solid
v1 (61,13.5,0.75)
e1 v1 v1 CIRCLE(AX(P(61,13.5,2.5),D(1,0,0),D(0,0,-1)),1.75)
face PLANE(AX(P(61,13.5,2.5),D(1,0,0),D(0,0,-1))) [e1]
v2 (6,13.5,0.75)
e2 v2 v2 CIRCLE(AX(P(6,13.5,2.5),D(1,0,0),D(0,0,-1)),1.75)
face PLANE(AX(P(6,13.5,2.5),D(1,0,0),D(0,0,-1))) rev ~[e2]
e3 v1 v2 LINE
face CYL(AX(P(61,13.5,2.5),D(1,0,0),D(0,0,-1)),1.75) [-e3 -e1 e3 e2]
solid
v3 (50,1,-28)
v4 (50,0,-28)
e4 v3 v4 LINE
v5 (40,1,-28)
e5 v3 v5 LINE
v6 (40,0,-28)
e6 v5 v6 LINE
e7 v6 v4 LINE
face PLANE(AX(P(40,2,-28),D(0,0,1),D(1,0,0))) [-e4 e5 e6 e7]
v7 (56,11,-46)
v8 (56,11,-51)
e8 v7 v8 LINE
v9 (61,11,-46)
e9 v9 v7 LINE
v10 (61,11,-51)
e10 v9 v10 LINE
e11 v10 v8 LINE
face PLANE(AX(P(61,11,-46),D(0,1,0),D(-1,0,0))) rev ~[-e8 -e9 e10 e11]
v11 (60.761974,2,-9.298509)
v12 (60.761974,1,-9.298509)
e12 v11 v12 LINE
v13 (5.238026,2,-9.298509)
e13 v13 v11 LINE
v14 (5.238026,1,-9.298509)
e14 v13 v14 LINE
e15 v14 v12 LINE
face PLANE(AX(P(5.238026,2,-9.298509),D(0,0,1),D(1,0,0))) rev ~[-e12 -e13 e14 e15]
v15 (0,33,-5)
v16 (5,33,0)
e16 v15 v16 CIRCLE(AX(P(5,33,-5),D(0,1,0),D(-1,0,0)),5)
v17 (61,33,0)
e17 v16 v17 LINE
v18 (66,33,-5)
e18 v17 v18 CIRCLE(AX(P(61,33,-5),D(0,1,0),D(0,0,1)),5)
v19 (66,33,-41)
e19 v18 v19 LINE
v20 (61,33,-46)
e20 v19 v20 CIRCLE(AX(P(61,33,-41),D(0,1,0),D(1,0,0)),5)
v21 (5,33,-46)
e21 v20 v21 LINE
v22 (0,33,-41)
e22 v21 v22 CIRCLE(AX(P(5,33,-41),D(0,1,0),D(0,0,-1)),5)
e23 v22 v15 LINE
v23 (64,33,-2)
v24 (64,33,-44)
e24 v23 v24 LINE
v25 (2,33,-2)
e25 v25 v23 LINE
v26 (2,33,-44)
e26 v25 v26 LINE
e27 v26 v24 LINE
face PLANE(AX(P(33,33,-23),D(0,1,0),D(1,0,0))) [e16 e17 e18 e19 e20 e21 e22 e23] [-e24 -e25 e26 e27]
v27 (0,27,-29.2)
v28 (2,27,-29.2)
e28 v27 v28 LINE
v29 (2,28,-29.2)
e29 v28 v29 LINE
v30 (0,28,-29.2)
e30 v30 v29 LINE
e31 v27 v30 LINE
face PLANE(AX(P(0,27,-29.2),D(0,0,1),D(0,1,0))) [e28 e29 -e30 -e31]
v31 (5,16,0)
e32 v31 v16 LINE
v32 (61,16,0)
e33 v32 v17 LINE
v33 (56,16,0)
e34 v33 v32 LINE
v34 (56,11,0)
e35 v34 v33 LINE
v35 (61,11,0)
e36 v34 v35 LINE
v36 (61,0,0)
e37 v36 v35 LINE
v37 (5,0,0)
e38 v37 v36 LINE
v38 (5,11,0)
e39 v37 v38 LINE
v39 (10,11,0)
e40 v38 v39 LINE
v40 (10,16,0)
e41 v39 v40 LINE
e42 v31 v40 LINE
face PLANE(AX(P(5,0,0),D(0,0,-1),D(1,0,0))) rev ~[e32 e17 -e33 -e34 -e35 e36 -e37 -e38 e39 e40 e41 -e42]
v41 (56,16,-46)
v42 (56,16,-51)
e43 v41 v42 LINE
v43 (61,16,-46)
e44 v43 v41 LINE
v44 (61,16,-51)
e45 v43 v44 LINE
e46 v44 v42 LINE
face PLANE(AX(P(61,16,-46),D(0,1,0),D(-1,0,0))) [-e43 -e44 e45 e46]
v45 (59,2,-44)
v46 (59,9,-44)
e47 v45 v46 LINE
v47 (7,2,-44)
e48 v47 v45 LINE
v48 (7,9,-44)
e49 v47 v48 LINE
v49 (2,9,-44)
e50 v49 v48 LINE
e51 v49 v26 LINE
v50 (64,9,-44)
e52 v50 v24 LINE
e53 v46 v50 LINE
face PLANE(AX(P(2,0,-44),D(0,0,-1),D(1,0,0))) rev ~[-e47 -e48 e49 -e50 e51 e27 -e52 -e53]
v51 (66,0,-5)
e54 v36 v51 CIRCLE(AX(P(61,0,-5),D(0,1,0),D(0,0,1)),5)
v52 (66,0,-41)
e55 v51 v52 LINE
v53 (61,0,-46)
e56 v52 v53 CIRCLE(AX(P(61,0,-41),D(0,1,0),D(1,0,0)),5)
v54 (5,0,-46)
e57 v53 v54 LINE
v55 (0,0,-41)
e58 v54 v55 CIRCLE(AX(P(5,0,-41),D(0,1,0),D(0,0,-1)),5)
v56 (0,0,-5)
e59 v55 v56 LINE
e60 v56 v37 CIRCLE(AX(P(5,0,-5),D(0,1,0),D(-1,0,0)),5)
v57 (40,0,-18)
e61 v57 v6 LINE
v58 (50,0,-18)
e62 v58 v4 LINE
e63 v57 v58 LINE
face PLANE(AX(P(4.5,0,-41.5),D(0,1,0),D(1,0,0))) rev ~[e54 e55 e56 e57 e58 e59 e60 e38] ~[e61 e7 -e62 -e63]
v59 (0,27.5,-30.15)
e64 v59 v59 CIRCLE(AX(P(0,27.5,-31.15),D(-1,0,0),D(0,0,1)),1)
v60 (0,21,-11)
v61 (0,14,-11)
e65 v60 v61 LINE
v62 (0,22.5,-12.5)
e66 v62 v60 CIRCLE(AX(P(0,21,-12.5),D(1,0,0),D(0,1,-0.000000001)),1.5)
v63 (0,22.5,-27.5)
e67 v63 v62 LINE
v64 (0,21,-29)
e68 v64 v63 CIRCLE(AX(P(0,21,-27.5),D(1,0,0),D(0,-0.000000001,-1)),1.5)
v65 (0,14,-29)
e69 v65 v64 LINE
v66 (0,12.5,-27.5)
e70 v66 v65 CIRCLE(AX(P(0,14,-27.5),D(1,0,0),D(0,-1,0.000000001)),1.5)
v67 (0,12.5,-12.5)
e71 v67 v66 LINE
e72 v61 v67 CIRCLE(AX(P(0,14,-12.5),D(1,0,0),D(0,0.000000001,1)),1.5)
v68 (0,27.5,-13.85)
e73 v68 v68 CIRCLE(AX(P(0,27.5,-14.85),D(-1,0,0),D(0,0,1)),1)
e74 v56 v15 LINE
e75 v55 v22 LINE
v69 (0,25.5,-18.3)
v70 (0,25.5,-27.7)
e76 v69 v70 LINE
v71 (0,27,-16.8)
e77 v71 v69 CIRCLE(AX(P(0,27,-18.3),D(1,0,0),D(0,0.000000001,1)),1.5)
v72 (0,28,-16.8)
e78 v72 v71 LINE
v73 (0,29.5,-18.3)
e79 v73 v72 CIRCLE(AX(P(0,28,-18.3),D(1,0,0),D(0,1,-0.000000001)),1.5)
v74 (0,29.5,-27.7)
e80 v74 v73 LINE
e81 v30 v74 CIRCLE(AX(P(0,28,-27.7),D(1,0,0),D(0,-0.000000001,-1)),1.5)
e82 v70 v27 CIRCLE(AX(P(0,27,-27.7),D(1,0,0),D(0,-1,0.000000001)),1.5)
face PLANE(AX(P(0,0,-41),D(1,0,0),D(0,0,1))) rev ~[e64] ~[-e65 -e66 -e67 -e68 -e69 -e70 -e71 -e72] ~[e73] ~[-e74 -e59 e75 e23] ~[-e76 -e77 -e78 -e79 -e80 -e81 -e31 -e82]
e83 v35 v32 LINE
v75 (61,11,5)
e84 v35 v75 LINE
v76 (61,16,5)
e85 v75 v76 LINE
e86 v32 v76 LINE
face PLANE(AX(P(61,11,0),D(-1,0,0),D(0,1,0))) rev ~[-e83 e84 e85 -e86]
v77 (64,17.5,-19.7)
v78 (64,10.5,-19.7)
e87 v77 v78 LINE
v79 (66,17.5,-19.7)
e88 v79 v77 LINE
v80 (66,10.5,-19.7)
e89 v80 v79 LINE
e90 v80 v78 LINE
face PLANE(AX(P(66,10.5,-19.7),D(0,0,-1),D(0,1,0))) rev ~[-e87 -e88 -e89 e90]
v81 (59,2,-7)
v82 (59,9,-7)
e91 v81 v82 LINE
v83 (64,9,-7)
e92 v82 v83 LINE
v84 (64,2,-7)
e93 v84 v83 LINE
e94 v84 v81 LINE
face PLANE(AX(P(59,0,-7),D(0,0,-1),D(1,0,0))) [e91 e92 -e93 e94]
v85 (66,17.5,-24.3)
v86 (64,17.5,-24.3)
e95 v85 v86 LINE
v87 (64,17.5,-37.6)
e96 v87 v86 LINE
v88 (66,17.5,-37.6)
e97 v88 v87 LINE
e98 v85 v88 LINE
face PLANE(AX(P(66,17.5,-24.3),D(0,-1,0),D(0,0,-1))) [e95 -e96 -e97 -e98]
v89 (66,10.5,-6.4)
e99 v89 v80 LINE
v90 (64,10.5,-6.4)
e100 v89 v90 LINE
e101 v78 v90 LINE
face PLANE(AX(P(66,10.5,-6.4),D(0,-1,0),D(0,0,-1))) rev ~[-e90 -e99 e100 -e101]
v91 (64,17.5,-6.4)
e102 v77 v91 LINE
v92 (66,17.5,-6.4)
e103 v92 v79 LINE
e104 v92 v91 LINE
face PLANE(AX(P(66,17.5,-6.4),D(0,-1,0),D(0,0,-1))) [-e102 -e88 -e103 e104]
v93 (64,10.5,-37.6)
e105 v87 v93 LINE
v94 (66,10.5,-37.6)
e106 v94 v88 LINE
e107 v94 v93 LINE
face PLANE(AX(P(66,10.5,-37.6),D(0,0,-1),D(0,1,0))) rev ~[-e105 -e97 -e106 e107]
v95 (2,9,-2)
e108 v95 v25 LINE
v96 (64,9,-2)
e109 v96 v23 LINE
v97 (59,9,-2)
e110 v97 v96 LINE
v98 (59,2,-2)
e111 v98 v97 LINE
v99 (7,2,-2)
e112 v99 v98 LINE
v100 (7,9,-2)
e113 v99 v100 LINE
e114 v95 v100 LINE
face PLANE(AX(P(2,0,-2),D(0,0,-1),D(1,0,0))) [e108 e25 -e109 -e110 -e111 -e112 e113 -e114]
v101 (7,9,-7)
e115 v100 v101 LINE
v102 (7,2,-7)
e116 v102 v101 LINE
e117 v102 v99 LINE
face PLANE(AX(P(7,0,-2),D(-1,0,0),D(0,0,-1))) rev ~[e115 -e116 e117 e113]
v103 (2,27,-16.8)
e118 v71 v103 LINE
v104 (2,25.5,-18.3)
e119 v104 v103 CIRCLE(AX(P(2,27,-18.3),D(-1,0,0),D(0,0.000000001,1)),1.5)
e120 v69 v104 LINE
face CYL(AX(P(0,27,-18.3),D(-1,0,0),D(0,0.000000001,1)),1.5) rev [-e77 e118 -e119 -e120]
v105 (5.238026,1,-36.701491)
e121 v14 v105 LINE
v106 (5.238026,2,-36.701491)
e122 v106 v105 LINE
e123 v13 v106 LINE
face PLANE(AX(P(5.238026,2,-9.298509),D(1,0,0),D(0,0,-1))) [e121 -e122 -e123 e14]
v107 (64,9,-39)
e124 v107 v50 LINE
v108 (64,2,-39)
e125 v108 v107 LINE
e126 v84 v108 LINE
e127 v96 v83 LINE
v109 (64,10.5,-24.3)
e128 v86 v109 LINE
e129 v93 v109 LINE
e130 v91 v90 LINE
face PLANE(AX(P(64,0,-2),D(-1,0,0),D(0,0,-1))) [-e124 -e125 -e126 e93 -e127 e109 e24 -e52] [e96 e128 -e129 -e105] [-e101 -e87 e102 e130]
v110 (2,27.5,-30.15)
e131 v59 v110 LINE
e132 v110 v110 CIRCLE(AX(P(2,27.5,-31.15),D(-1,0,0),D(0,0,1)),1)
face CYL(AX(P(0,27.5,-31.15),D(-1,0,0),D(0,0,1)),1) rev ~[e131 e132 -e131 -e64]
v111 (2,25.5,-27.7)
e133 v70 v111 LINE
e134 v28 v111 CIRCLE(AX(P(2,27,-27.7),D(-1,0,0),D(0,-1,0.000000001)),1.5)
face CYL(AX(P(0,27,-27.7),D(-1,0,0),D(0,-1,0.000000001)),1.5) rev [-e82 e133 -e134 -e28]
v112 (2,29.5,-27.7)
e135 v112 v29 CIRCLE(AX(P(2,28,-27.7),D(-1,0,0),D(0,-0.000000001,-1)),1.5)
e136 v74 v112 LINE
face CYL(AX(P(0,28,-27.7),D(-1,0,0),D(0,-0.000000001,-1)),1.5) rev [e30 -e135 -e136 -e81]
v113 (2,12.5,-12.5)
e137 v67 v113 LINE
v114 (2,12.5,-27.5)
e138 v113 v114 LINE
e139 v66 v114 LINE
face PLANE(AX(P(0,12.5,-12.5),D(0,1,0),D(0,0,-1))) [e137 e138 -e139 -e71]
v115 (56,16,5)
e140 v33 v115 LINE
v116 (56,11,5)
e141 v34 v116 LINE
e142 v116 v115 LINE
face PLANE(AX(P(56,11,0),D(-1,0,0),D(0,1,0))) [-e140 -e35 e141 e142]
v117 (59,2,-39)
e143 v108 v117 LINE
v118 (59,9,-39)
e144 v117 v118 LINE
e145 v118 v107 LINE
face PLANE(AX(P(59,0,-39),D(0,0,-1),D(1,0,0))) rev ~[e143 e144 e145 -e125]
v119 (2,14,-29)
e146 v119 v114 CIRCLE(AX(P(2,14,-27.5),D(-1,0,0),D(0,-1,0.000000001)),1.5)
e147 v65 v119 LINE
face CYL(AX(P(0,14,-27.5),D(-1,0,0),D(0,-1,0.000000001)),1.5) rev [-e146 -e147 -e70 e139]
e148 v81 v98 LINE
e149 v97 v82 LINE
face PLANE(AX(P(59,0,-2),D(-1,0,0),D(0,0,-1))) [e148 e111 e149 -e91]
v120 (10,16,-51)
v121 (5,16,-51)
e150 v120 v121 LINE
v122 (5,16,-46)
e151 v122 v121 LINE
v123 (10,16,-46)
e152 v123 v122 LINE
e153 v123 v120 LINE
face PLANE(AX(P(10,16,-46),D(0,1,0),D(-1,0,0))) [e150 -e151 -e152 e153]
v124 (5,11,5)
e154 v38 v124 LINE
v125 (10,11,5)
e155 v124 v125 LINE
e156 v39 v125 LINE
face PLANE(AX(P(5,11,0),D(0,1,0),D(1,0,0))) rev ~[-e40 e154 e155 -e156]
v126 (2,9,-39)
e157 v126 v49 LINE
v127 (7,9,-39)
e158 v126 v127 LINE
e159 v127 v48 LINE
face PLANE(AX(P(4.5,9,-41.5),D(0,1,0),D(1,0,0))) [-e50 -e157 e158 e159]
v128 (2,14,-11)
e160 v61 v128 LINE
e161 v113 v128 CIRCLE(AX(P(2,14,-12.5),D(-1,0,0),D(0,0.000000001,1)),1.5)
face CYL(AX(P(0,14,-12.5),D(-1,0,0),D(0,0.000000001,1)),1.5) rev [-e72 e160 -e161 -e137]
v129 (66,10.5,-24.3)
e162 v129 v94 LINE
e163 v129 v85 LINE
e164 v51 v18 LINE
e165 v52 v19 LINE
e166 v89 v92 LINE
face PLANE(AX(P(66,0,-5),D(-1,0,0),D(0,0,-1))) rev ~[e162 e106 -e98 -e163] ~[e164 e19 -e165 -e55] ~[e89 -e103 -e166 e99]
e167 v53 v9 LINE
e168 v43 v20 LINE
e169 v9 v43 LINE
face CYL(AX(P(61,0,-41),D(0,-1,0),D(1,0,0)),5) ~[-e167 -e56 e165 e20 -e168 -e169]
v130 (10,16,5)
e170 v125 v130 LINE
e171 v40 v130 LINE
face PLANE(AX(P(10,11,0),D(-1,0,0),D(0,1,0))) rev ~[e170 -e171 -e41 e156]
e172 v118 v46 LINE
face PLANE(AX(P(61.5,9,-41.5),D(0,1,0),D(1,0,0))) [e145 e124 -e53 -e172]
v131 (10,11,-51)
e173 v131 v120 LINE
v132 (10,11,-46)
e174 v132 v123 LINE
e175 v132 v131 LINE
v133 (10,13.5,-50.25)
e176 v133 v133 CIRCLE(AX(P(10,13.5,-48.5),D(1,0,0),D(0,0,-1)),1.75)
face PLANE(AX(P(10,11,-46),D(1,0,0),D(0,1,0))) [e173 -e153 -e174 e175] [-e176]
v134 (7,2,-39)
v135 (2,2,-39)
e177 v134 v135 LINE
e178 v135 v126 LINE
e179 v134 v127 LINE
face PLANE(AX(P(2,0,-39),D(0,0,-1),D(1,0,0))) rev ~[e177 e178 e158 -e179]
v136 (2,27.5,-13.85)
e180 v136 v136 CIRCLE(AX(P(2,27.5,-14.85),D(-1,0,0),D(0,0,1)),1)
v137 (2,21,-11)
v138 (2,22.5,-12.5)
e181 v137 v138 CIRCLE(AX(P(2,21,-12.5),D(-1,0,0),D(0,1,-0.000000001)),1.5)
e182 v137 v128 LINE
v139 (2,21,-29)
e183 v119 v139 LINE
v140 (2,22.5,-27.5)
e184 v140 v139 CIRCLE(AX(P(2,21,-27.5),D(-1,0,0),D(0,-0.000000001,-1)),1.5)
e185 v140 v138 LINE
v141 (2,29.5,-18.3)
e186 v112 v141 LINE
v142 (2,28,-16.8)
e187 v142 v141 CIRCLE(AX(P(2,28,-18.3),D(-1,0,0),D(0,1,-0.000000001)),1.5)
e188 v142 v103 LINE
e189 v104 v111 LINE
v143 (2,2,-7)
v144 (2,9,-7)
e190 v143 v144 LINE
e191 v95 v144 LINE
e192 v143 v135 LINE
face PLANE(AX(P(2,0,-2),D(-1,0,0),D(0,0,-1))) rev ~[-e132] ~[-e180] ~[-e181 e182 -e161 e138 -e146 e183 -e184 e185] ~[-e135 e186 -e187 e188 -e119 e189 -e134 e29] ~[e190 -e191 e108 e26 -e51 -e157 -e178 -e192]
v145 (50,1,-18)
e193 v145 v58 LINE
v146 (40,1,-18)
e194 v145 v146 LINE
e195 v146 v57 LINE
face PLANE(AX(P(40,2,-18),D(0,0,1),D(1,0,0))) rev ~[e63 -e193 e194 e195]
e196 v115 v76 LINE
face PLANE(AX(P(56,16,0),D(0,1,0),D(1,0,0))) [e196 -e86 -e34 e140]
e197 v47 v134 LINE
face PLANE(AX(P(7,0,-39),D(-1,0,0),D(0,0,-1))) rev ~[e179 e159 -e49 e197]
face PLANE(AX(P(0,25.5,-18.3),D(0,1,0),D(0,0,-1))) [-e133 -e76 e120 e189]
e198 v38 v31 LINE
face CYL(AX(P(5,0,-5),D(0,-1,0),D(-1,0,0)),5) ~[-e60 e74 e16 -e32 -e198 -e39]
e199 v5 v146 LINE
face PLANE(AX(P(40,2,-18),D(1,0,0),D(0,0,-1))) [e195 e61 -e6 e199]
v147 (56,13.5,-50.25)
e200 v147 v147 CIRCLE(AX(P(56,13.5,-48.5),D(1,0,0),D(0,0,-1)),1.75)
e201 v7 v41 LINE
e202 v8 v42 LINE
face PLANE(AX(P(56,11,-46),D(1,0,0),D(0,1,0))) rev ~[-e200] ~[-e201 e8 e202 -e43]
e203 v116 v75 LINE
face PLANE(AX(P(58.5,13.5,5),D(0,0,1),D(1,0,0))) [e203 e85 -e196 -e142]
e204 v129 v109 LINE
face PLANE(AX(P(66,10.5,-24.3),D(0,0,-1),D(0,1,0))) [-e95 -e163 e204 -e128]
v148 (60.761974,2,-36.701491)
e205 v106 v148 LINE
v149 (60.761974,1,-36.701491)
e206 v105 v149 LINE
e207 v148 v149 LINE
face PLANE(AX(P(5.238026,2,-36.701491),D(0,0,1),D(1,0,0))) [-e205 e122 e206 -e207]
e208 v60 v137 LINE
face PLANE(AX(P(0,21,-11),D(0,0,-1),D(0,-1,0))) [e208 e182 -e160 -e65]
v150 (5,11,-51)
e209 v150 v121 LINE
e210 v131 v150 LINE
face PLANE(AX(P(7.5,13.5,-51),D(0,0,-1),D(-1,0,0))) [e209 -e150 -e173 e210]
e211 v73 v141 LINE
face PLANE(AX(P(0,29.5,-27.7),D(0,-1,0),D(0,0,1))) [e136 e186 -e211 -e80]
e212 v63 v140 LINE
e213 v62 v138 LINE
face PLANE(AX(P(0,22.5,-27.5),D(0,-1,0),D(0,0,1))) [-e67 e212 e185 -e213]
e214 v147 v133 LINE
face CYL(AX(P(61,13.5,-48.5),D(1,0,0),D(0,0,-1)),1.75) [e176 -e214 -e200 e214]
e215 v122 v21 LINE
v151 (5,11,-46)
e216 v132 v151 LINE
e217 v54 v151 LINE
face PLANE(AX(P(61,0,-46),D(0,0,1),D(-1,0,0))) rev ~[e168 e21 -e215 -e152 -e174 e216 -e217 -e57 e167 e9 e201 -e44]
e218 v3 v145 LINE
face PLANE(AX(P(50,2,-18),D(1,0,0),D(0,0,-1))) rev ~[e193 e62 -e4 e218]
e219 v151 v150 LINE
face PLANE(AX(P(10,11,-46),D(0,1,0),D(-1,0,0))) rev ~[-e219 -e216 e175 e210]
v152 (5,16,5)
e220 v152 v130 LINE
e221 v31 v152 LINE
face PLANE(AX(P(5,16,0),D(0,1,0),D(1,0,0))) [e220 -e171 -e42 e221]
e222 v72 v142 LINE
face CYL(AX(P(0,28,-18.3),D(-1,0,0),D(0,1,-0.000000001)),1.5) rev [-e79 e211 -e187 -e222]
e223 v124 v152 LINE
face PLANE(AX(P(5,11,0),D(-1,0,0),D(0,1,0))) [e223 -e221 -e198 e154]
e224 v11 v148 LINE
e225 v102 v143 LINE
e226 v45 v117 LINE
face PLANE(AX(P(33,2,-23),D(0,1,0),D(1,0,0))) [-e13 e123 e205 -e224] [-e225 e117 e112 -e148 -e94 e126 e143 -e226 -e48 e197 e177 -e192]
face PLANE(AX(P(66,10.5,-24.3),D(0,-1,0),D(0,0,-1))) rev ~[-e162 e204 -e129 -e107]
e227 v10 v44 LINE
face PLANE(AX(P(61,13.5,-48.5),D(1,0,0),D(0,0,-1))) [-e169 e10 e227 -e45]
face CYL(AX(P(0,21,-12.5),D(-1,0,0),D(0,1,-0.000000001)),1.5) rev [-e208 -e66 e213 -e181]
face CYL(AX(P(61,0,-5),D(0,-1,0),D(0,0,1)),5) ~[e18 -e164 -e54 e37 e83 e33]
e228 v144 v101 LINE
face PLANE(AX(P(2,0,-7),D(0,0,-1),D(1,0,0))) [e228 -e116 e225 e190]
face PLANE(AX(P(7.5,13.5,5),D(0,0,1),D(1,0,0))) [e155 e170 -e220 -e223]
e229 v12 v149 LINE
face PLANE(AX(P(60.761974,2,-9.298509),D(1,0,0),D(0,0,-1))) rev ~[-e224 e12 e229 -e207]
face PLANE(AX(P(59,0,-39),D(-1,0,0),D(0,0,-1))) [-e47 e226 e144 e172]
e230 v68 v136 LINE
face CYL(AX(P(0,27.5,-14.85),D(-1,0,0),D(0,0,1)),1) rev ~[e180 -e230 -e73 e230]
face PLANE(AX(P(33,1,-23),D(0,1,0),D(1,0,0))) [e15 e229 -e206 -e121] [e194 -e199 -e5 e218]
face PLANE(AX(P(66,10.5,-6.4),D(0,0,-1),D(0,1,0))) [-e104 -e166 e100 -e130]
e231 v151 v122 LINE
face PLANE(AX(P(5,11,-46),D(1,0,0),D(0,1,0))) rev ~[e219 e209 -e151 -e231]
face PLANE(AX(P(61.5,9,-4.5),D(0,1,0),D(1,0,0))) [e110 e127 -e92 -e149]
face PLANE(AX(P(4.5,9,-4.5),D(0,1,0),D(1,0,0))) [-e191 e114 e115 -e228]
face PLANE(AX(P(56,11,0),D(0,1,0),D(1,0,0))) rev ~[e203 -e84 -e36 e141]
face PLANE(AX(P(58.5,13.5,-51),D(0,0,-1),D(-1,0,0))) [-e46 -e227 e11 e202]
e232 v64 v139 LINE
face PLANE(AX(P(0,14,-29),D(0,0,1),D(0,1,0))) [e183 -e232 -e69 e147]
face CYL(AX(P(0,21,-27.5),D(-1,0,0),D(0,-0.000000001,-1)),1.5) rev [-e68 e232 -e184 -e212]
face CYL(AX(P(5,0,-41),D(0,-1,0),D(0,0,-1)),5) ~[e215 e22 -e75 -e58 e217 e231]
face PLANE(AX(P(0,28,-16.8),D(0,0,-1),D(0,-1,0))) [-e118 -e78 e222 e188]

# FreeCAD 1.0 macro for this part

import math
import FreeCAD as App
import Part
import Sketcher

V = App.Vector
Q = App.Units.Quantity

doc = App.newDocument("Part")
body = doc.addObject("PartDesign::Body", "Body")

# Sketch on XZ plane
sketch1 = doc.addObject("Sketcher::SketchObject", "Sketch")
body.addObject(sketch1)
sketch1.AttachmentSupport = (doc.XZ_Plane, [""])
sketch1.MapMode = "FlatFace"
sketch1.addGeometry(Part.LineSegment(V(5, 0, 0), V(61, 0, 0)), False)
sketch1.addGeometry(Part.ArcOfCircle(Part.Circle(V(61, -5, 0), V(0, 0, 1), 5), math.radians(0), math.radians(90)), False)
sketch1.addGeometry(Part.LineSegment(V(66, -5, 0), V(66, -41, 0)), False)
sketch1.addGeometry(Part.ArcOfCircle(Part.Circle(V(61, -41, 0), V(0, 0, 1), 5), math.radians(-90), math.radians(0)), False)
sketch1.addGeometry(Part.LineSegment(V(61, -46, 0), V(5, -46, 0)), False)
sketch1.addGeometry(Part.ArcOfCircle(Part.Circle(V(5, -41, 0), V(0, 0, 1), 5), math.radians(180), math.radians(270)), False)
sketch1.addGeometry(Part.LineSegment(V(0, -41, 0), V(0, -5, 0)), False)
sketch1.addGeometry(Part.ArcOfCircle(Part.Circle(V(5, -5, 0), V(0, 0, 1), 5), math.radians(90), math.radians(180)), False)
sketch1.addGeometry(Part.LineSegment(V(64, -2, 0), V(2, -2, 0)), False)
sketch1.addGeometry(Part.LineSegment(V(2, -2, 0), V(2, -44, 0)), False)
sketch1.addGeometry(Part.LineSegment(V(2, -44, 0), V(64, -44, 0)), False)
sketch1.addGeometry(Part.LineSegment(V(64, -44, 0), V(64, -2, 0)), False)
sketch1.addConstraint(Sketcher.Constraint("Tangent", 0, 2, 1, 2))
sketch1.addConstraint(Sketcher.Constraint("Tangent", 1, 1, 2, 1))
sketch1.addConstraint(Sketcher.Constraint("Tangent", 2, 2, 3, 2))
sketch1.addConstraint(Sketcher.Constraint("Tangent", 3, 1, 4, 1))
sketch1.addConstraint(Sketcher.Constraint("Tangent", 4, 2, 5, 2))
sketch1.addConstraint(Sketcher.Constraint("Tangent", 5, 1, 6, 1))
sketch1.addConstraint(Sketcher.Constraint("Tangent", 6, 2, 7, 2))
sketch1.addConstraint(Sketcher.Constraint("Tangent", 7, 1, 0, 1))
sketch1.addConstraint(Sketcher.Constraint("Coincident", 8, 2, 9, 1))
sketch1.addConstraint(Sketcher.Constraint("Coincident", 9, 2, 10, 1))
sketch1.addConstraint(Sketcher.Constraint("Coincident", 10, 2, 11, 1))
sketch1.addConstraint(Sketcher.Constraint("Coincident", 11, 2, 8, 1))
sketch1.addConstraint(Sketcher.Constraint("Horizontal", 0))
sketch1.addConstraint(Sketcher.Constraint("Vertical", 2))
sketch1.addConstraint(Sketcher.Constraint("Horizontal", 4))
sketch1.addConstraint(Sketcher.Constraint("Vertical", 6))
sketch1.addConstraint(Sketcher.Constraint("Horizontal", 8))
sketch1.addConstraint(Sketcher.Constraint("Vertical", 9))
sketch1.addConstraint(Sketcher.Constraint("Horizontal", 10))
sketch1.addConstraint(Sketcher.Constraint("Vertical", 11))
sketch1.addConstraint(Sketcher.Constraint("Equal", 1, 3))
sketch1.addConstraint(Sketcher.Constraint("Equal", 3, 5))
sketch1.addConstraint(Sketcher.Constraint("Equal", 5, 7))
sketch1.addConstraint(Sketcher.Constraint("PointOnObject", 0, 2, -1))
sketch1.addConstraint(Sketcher.Constraint("PointOnObject", 5, 1, -2))
sketch1.addConstraint(Sketcher.Constraint("Radius", 1, Q("5 mm")))
sketch1.addConstraint(Sketcher.Constraint("DistanceX", 0, 1, 0, 2, Q("56 mm")))
sketch1.addConstraint(Sketcher.Constraint("DistanceX", 8, 2, 8, 1, Q("62 mm")))
sketch1.addConstraint(Sketcher.Constraint("DistanceY", 2, 2, 2, 1, Q("36 mm")))
sketch1.addConstraint(Sketcher.Constraint("DistanceY", 9, 2, 9, 1, Q("42 mm")))
sketch1.addConstraint(Sketcher.Constraint("DistanceX", -1, 1, 8, 2, Q("2 mm")))
sketch1.addConstraint(Sketcher.Constraint("DistanceY", 8, 2, -1, 1, Q("2 mm")))
pad1 = doc.addObject("PartDesign::Pad", "Pad")
body.addObject(pad1)
pad1.Profile = sketch1
pad1.Length = 33
pad1.Reversed = True

# Sketch on XZ plane
sketch2 = doc.addObject("Sketcher::SketchObject", "Sketch001")
body.addObject(sketch2)
sketch2.AttachmentSupport = (doc.XZ_Plane, [""])
sketch2.MapMode = "FlatFace"
sketch2.addGeometry(Part.LineSegment(V(2, -44, 0), V(2, -2, 0)), False)
sketch2.addGeometry(Part.LineSegment(V(2, -2, 0), V(64, -2, 0)), False)
sketch2.addGeometry(Part.LineSegment(V(64, -2, 0), V(64, -44, 0)), False)
sketch2.addGeometry(Part.LineSegment(V(64, -44, 0), V(2, -44, 0)), False)
sketch2.addConstraint(Sketcher.Constraint("Coincident", 0, 2, 1, 1))
sketch2.addConstraint(Sketcher.Constraint("Coincident", 1, 2, 2, 1))
sketch2.addConstraint(Sketcher.Constraint("Coincident", 2, 2, 3, 1))
sketch2.addConstraint(Sketcher.Constraint("Coincident", 3, 2, 0, 1))
sketch2.addConstraint(Sketcher.Constraint("Vertical", 0))
sketch2.addConstraint(Sketcher.Constraint("Horizontal", 1))
sketch2.addConstraint(Sketcher.Constraint("Vertical", 2))
sketch2.addConstraint(Sketcher.Constraint("Horizontal", 3))
sketch2.addConstraint(Sketcher.Constraint("DistanceX", 1, 1, 1, 2, Q("62 mm")))
sketch2.addConstraint(Sketcher.Constraint("DistanceY", 0, 1, 0, 2, Q("42 mm")))
sketch2.addConstraint(Sketcher.Constraint("DistanceX", -1, 1, 0, 2, Q("2 mm")))
sketch2.addConstraint(Sketcher.Constraint("DistanceY", 0, 2, -1, 1, Q("2 mm")))
pad2 = doc.addObject("PartDesign::Pad", "Pad001")
body.addObject(pad2)
pad2.Profile = sketch2
pad2.Length = 2
pad2.Reversed = True

# Sketch on XZ plane
sketch3 = doc.addObject("Sketcher::SketchObject", "Sketch002")
body.addObject(sketch3)
sketch3.AttachmentSupport = (doc.XZ_Plane, [""])
sketch3.MapMode = "FlatFace"
sketch3.addGeometry(Part.LineSegment(V(2, -44, 0), V(2, -39, 0)), False)
sketch3.addGeometry(Part.LineSegment(V(2, -39, 0), V(7, -39, 0)), False)
sketch3.addGeometry(Part.LineSegment(V(7, -39, 0), V(7, -44, 0)), False)
sketch3.addGeometry(Part.LineSegment(V(7, -44, 0), V(2, -44, 0)), False)
sketch3.addGeometry(Part.LineSegment(V(59, -7, 0), V(59, -2, 0)), False)
sketch3.addGeometry(Part.LineSegment(V(59, -2, 0), V(64, -2, 0)), False)
sketch3.addGeometry(Part.LineSegment(V(64, -2, 0), V(64, -7, 0)), False)
sketch3.addGeometry(Part.LineSegment(V(64, -7, 0), V(59, -7, 0)), False)
sketch3.addGeometry(Part.LineSegment(V(59, -44, 0), V(59, -39, 0)), False)
sketch3.addGeometry(Part.LineSegment(V(59, -39, 0), V(64, -39, 0)), False)
sketch3.addGeometry(Part.LineSegment(V(64, -39, 0), V(64, -44, 0)), False)
sketch3.addGeometry(Part.LineSegment(V(64, -44, 0), V(59, -44, 0)), False)
sketch3.addGeometry(Part.LineSegment(V(2, -7, 0), V(2, -2, 0)), False)
sketch3.addGeometry(Part.LineSegment(V(2, -2, 0), V(7, -2, 0)), False)
sketch3.addGeometry(Part.LineSegment(V(7, -2, 0), V(7, -7, 0)), False)
sketch3.addGeometry(Part.LineSegment(V(7, -7, 0), V(2, -7, 0)), False)
sketch3.addConstraint(Sketcher.Constraint("Coincident", 0, 2, 1, 1))
sketch3.addConstraint(Sketcher.Constraint("Coincident", 1, 2, 2, 1))
sketch3.addConstraint(Sketcher.Constraint("Coincident", 2, 2, 3, 1))
sketch3.addConstraint(Sketcher.Constraint("Coincident", 3, 2, 0, 1))
sketch3.addConstraint(Sketcher.Constraint("Coincident", 4, 2, 5, 1))
sketch3.addConstraint(Sketcher.Constraint("Coincident", 5, 2, 6, 1))
sketch3.addConstraint(Sketcher.Constraint("Coincident", 6, 2, 7, 1))
sketch3.addConstraint(Sketcher.Constraint("Coincident", 7, 2, 4, 1))
sketch3.addConstraint(Sketcher.Constraint("Coincident", 8, 2, 9, 1))
sketch3.addConstraint(Sketcher.Constraint("Coincident", 9, 2, 10, 1))
sketch3.addConstraint(Sketcher.Constraint("Coincident", 10, 2, 11, 1))
sketch3.addConstraint(Sketcher.Constraint("Coincident", 11, 2, 8, 1))
sketch3.addConstraint(Sketcher.Constraint("Coincident", 12, 2, 13, 1))
sketch3.addConstraint(Sketcher.Constraint("Coincident", 13, 2, 14, 1))
sketch3.addConstraint(Sketcher.Constraint("Coincident", 14, 2, 15, 1))
sketch3.addConstraint(Sketcher.Constraint("Coincident", 15, 2, 12, 1))
sketch3.addConstraint(Sketcher.Constraint("Vertical", 0))
sketch3.addConstraint(Sketcher.Constraint("Horizontal", 1))
sketch3.addConstraint(Sketcher.Constraint("Vertical", 2))
sketch3.addConstraint(Sketcher.Constraint("Horizontal", 3))
sketch3.addConstraint(Sketcher.Constraint("Vertical", 4))
sketch3.addConstraint(Sketcher.Constraint("Horizontal", 5))
sketch3.addConstraint(Sketcher.Constraint("Vertical", 6))
sketch3.addConstraint(Sketcher.Constraint("Horizontal", 7))
sketch3.addConstraint(Sketcher.Constraint("Vertical", 8))
sketch3.addConstraint(Sketcher.Constraint("Horizontal", 9))
sketch3.addConstraint(Sketcher.Constraint("Vertical", 10))
sketch3.addConstraint(Sketcher.Constraint("Horizontal", 11))
sketch3.addConstraint(Sketcher.Constraint("Vertical", 12))
sketch3.addConstraint(Sketcher.Constraint("Horizontal", 13))
sketch3.addConstraint(Sketcher.Constraint("Vertical", 14))
sketch3.addConstraint(Sketcher.Constraint("Horizontal", 15))
sketch3.addConstraint(Sketcher.Constraint("Horizontal", 1, 2, 8, 2))
sketch3.addConstraint(Sketcher.Constraint("Horizontal", 3, 2, 10, 2))
sketch3.addConstraint(Sketcher.Constraint("Horizontal", 5, 2, 12, 2))
sketch3.addConstraint(Sketcher.Constraint("Horizontal", 7, 2, 14, 2))
sketch3.addConstraint(Sketcher.Constraint("Vertical", 7, 2, 8, 2))
sketch3.addConstraint(Sketcher.Constraint("Vertical", 6, 2, 9, 2))
sketch3.addConstraint(Sketcher.Constraint("Vertical", 3, 2, 12, 2))
sketch3.addConstraint(Sketcher.Constraint("Vertical", 2, 2, 13, 2))
sketch3.addConstraint(Sketcher.Constraint("Equal", 3, 5))
sketch3.addConstraint(Sketcher.Constraint("Equal", 15, 0))
sketch3.addConstraint(Sketcher.Constraint("Equal", 2, 4))
sketch3.addConstraint(Sketcher.Constraint("DistanceX", 1, 1, 1, 2, Q("5 mm")))
sketch3.addConstraint(Sketcher.Constraint("DistanceX", -1, 1, 0, 2, Q("2 mm")))
sketch3.addConstraint(Sketcher.Constraint("DistanceY", 0, 2, -1, 1, Q("39 mm")))
sketch3.addConstraint(Sketcher.Constraint("DistanceX", -1, 1, 4, 2, Q("59 mm")))
sketch3.addConstraint(Sketcher.Constraint("DistanceY", 4, 2, -1, 1, Q("2 mm")))
pad3 = doc.addObject("PartDesign::Pad", "Pad002")
body.addObject(pad3)
pad3.Profile = sketch3
pad3.Length = 9
pad3.Reversed = True

# Sketch on XZ plane
sketch4 = doc.addObject("Sketcher::SketchObject", "Sketch003")
body.addObject(sketch4)
sketch4.AttachmentSupport = (doc.XZ_Plane, [""])
sketch4.MapMode = "FlatFace"
sketch4.AttachmentOffset = App.Placement(V(0, 0, -2), App.Rotation())
sketch4.addGeometry(Part.LineSegment(V(40, -28, 0), V(40, -18, 0)), False)
sketch4.addGeometry(Part.LineSegment(V(40, -18, 0), V(50, -18, 0)), False)
sketch4.addGeometry(Part.LineSegment(V(50, -18, 0), V(50, -28, 0)), False)
sketch4.addGeometry(Part.LineSegment(V(50, -28, 0), V(40, -28, 0)), False)
sketch4.addConstraint(Sketcher.Constraint("Coincident", 0, 2, 1, 1))
sketch4.addConstraint(Sketcher.Constraint("Coincident", 1, 2, 2, 1))
sketch4.addConstraint(Sketcher.Constraint("Coincident", 2, 2, 3, 1))
sketch4.addConstraint(Sketcher.Constraint("Coincident", 3, 2, 0, 1))
sketch4.addConstraint(Sketcher.Constraint("Vertical", 0))
sketch4.addConstraint(Sketcher.Constraint("Horizontal", 1))
sketch4.addConstraint(Sketcher.Constraint("Vertical", 2))
sketch4.addConstraint(Sketcher.Constraint("Horizontal", 3))
sketch4.addConstraint(Sketcher.Constraint("Equal", 3, 0))
sketch4.addConstraint(Sketcher.Constraint("DistanceX", 1, 1, 1, 2, Q("10 mm")))
sketch4.addConstraint(Sketcher.Constraint("DistanceX", -1, 1, 0, 2, Q("40 mm")))
sketch4.addConstraint(Sketcher.Constraint("DistanceY", 0, 2, -1, 1, Q("18 mm")))
pocket1 = doc.addObject("PartDesign::Pocket", "Pocket")
body.addObject(pocket1)
pocket1.Profile = sketch4
pocket1.Type = "ThroughAll"
pocket1.Reversed = True

# Sketch on YZ plane
sketch5 = doc.addObject("Sketcher::SketchObject", "Sketch004")
body.addObject(sketch5)
sketch5.AttachmentSupport = (doc.YZ_Plane, [""])
sketch5.MapMode = "FlatFace"
sketch5.AttachmentOffset = App.Placement(V(0, 0, 66), App.Rotation())
sketch5.addGeometry(Part.LineSegment(V(18, -24, 0), V(10, -24, 0)), False)
sketch5.addGeometry(Part.LineSegment(V(10, -24, 0), V(10, -38, 0)), False)
sketch5.addGeometry(Part.LineSegment(V(10, -38, 0), V(18, -38, 0)), False)
sketch5.addGeometry(Part.LineSegment(V(18, -38, 0), V(18, -24, 0)), False)
sketch5.addGeometry(Part.LineSegment(V(18, -6, 0), V(10, -6, 0)), False)
sketch5.addGeometry(Part.LineSegment(V(10, -6, 0), V(10, -20, 0)), False)
sketch5.addGeometry(Part.LineSegment(V(10, -20, 0), V(18, -20, 0)), False)
sketch5.addGeometry(Part.LineSegment(V(18, -20, 0), V(18, -6, 0)), False)
sketch5.addConstraint(Sketcher.Constraint("Coincident", 0, 2, 1, 1))
sketch5.addConstraint(Sketcher.Constraint("Coincident", 1, 2, 2, 1))
sketch5.addConstraint(Sketcher.Constraint("Coincident", 2, 2, 3, 1))
sketch5.addConstraint(Sketcher.Constraint("Coincident", 3, 2, 0, 1))
sketch5.addConstraint(Sketcher.Constraint("Coincident", 4, 2, 5, 1))
sketch5.addConstraint(Sketcher.Constraint("Coincident", 5, 2, 6, 1))
sketch5.addConstraint(Sketcher.Constraint("Coincident", 6, 2, 7, 1))
sketch5.addConstraint(Sketcher.Constraint("Coincident", 7, 2, 4, 1))
sketch5.addConstraint(Sketcher.Constraint("Horizontal", 0))
sketch5.addConstraint(Sketcher.Constraint("Vertical", 1))
sketch5.addConstraint(Sketcher.Constraint("Horizontal", 2))
sketch5.addConstraint(Sketcher.Constraint("Vertical", 3))
sketch5.addConstraint(Sketcher.Constraint("Horizontal", 4))
sketch5.addConstraint(Sketcher.Constraint("Vertical", 5))
sketch5.addConstraint(Sketcher.Constraint("Horizontal", 6))
sketch5.addConstraint(Sketcher.Constraint("Vertical", 7))
sketch5.addConstraint(Sketcher.Constraint("Vertical", 1, 2, 4, 2))
sketch5.addConstraint(Sketcher.Constraint("Vertical", 3, 2, 6, 2))
sketch5.addConstraint(Sketcher.Constraint("Equal", 3, 5))
sketch5.addConstraint(Sketcher.Constraint("DistanceX", 0, 2, 0, 1, Q("7 mm")))
sketch5.addConstraint(Sketcher.Constraint("DistanceY", 1, 2, 1, 1, Q("13.3 mm")))
sketch5.addConstraint(Sketcher.Constraint("DistanceX", -1, 1, 0, 2, Q("10.5 mm")))
sketch5.addConstraint(Sketcher.Constraint("DistanceY", 0, 2, -1, 1, Q("24.3 mm")))
sketch5.addConstraint(Sketcher.Constraint("DistanceY", 4, 2, -1, 1, Q("6.4 mm")))
pocket2 = doc.addObject("PartDesign::Pocket", "Pocket001")
body.addObject(pocket2)
pocket2.Profile = sketch5
pocket2.Length = 10

# Sketch on XY plane
sketch6 = doc.addObject("Sketcher::SketchObject", "Sketch005")
body.addObject(sketch6)
sketch6.AttachmentSupport = (doc.XY_Plane, [""])
sketch6.MapMode = "FlatFace"
sketch6.addGeometry(Part.LineSegment(V(56, 16, 0), V(56, 11, 0)), False)
sketch6.addGeometry(Part.LineSegment(V(56, 11, 0), V(61, 11, 0)), False)
sketch6.addGeometry(Part.LineSegment(V(61, 11, 0), V(61, 16, 0)), False)
sketch6.addGeometry(Part.LineSegment(V(61, 16, 0), V(56, 16, 0)), False)
sketch6.addGeometry(Part.LineSegment(V(5, 16, 0), V(5, 11, 0)), False)
sketch6.addGeometry(Part.LineSegment(V(5, 11, 0), V(10, 11, 0)), False)
sketch6.addGeometry(Part.LineSegment(V(10, 11, 0), V(10, 16, 0)), False)
sketch6.addGeometry(Part.LineSegment(V(10, 16, 0), V(5, 16, 0)), False)
sketch6.addConstraint(Sketcher.Constraint("Coincident", 0, 2, 1, 1))
sketch6.addConstraint(Sketcher.Constraint("Coincident", 1, 2, 2, 1))
sketch6.addConstraint(Sketcher.Constraint("Coincident", 2, 2, 3, 1))
sketch6.addConstraint(Sketcher.Constraint("Coincident", 3, 2, 0, 1))
sketch6.addConstraint(Sketcher.Constraint("Coincident", 4, 2, 5, 1))
sketch6.addConstraint(Sketcher.Constraint("Coincident", 5, 2, 6, 1))
sketch6.addConstraint(Sketcher.Constraint("Coincident", 6, 2, 7, 1))
sketch6.addConstraint(Sketcher.Constraint("Coincident", 7, 2, 4, 1))
sketch6.addConstraint(Sketcher.Constraint("Vertical", 0))
sketch6.addConstraint(Sketcher.Constraint("Horizontal", 1))
sketch6.addConstraint(Sketcher.Constraint("Vertical", 2))
sketch6.addConstraint(Sketcher.Constraint("Horizontal", 3))
sketch6.addConstraint(Sketcher.Constraint("Vertical", 4))
sketch6.addConstraint(Sketcher.Constraint("Horizontal", 5))
sketch6.addConstraint(Sketcher.Constraint("Vertical", 6))
sketch6.addConstraint(Sketcher.Constraint("Horizontal", 7))
sketch6.addConstraint(Sketcher.Constraint("Horizontal", 1, 2, 4, 2))
sketch6.addConstraint(Sketcher.Constraint("Horizontal", 3, 2, 6, 2))
sketch6.addConstraint(Sketcher.Constraint("Equal", 3, 5))
sketch6.addConstraint(Sketcher.Constraint("Equal", 7, 0))
sketch6.addConstraint(Sketcher.Constraint("DistanceX", 1, 1, 1, 2, Q("5 mm")))
sketch6.addConstraint(Sketcher.Constraint("DistanceX", -1, 1, 0, 2, Q("56 mm")))
sketch6.addConstraint(Sketcher.Constraint("DistanceY", -1, 1, 0, 2, Q("11 mm")))
sketch6.addConstraint(Sketcher.Constraint("DistanceX", -1, 1, 4, 2, Q("5 mm")))
pad4 = doc.addObject("PartDesign::Pad", "Pad003")
body.addObject(pad4)
pad4.Profile = sketch6
pad4.Length = 5

# Sketch on XY plane
sketch7 = doc.addObject("Sketcher::SketchObject", "Sketch006")
body.addObject(sketch7)
sketch7.AttachmentSupport = (doc.XY_Plane, [""])
sketch7.MapMode = "FlatFace"
sketch7.AttachmentOffset = App.Placement(V(0, 0, -46), App.Rotation())
sketch7.addGeometry(Part.LineSegment(V(10, 16, 0), V(10, 11, 0)), False)
sketch7.addGeometry(Part.LineSegment(V(10, 11, 0), V(5, 11, 0)), False)
sketch7.addGeometry(Part.LineSegment(V(5, 11, 0), V(5, 16, 0)), False)
sketch7.addGeometry(Part.LineSegment(V(5, 16, 0), V(10, 16, 0)), False)
sketch7.addGeometry(Part.LineSegment(V(61, 16, 0), V(61, 11, 0)), False)
sketch7.addGeometry(Part.LineSegment(V(61, 11, 0), V(56, 11, 0)), False)
sketch7.addGeometry(Part.LineSegment(V(56, 11, 0), V(56, 16, 0)), False)
sketch7.addGeometry(Part.LineSegment(V(56, 16, 0), V(61, 16, 0)), False)
sketch7.addConstraint(Sketcher.Constraint("Coincident", 0, 2, 1, 1))
sketch7.addConstraint(Sketcher.Constraint("Coincident", 1, 2, 2, 1))
sketch7.addConstraint(Sketcher.Constraint("Coincident", 2, 2, 3, 1))
sketch7.addConstraint(Sketcher.Constraint("Coincident", 3, 2, 0, 1))
sketch7.addConstraint(Sketcher.Constraint("Coincident", 4, 2, 5, 1))
sketch7.addConstraint(Sketcher.Constraint("Coincident", 5, 2, 6, 1))
sketch7.addConstraint(Sketcher.Constraint("Coincident", 6, 2, 7, 1))
sketch7.addConstraint(Sketcher.Constraint("Coincident", 7, 2, 4, 1))
sketch7.addConstraint(Sketcher.Constraint("Vertical", 0))
sketch7.addConstraint(Sketcher.Constraint("Horizontal", 1))
sketch7.addConstraint(Sketcher.Constraint("Vertical", 2))
sketch7.addConstraint(Sketcher.Constraint("Horizontal", 3))
sketch7.addConstraint(Sketcher.Constraint("Vertical", 4))
sketch7.addConstraint(Sketcher.Constraint("Horizontal", 5))
sketch7.addConstraint(Sketcher.Constraint("Vertical", 6))
sketch7.addConstraint(Sketcher.Constraint("Horizontal", 7))
sketch7.addConstraint(Sketcher.Constraint("Horizontal", 1, 2, 4, 2))
sketch7.addConstraint(Sketcher.Constraint("Horizontal", 3, 2, 6, 2))
sketch7.addConstraint(Sketcher.Constraint("Equal", 3, 5))
sketch7.addConstraint(Sketcher.Constraint("Equal", 7, 0))
sketch7.addConstraint(Sketcher.Constraint("DistanceX", 1, 2, 1, 1, Q("5 mm")))
sketch7.addConstraint(Sketcher.Constraint("DistanceX", -1, 1, 0, 2, Q("10 mm")))
sketch7.addConstraint(Sketcher.Constraint("DistanceY", -1, 1, 0, 2, Q("11 mm")))
sketch7.addConstraint(Sketcher.Constraint("DistanceX", -1, 1, 4, 2, Q("61 mm")))
pad5 = doc.addObject("PartDesign::Pad", "Pad004")
body.addObject(pad5)
pad5.Profile = sketch7
pad5.Length = 5
pad5.Reversed = True

# Sketch on YZ plane
sketch8 = doc.addObject("Sketcher::SketchObject", "Sketch007")
body.addObject(sketch8)
sketch8.AttachmentSupport = (doc.YZ_Plane, [""])
sketch8.MapMode = "FlatFace"
sketch8.AttachmentOffset = App.Placement(V(0, 0, 61), App.Rotation())
sketch8.addGeometry(Part.Circle(V(13.5, -48.5, 0), V(0, 0, 1), 1.8), False)
sketch8.addConstraint(Sketcher.Constraint("Diameter", 0, Q("3.5 mm")))
sketch8.addConstraint(Sketcher.Constraint("DistanceX", -1, 1, 0, 3, Q("13.5 mm")))
sketch8.addConstraint(Sketcher.Constraint("DistanceY", 0, 3, -1, 1, Q("48.5 mm")))
pad6 = doc.addObject("PartDesign::Pad", "Pad005")
body.addObject(pad6)
pad6.Profile = sketch8
pad6.Length = 55
pad6.Reversed = True

# Sketch on YZ plane
sketch9 = doc.addObject("Sketcher::SketchObject", "Sketch008")
body.addObject(sketch9)
sketch9.AttachmentSupport = (doc.YZ_Plane, [""])
sketch9.MapMode = "FlatFace"
sketch9.addGeometry(Part.LineSegment(V(29.5, -18.3, 0), V(29.5, -27.7, 0)), False)
sketch9.addGeometry(Part.ArcOfCircle(Part.Circle(V(28, -27.7, 0), V(0, 0, 1), 1.5), math.radians(-90), math.radians(0)), False)
sketch9.addGeometry(Part.LineSegment(V(28, -29.2, 0), V(27, -29.2, 0)), False)
sketch9.addGeometry(Part.ArcOfCircle(Part.Circle(V(27, -27.7, 0), V(0, 0, 1), 1.5), math.radians(180), math.radians(270)), False)
sketch9.addGeometry(Part.LineSegment(V(25.5, -27.7, 0), V(25.5, -18.3, 0)), False)
sketch9.addGeometry(Part.ArcOfCircle(Part.Circle(V(27, -18.3, 0), V(0, 0, 1), 1.5), math.radians(90), math.radians(180)), False)
sketch9.addGeometry(Part.LineSegment(V(27, -16.8, 0), V(28, -16.8, 0)), False)
sketch9.addGeometry(Part.ArcOfCircle(Part.Circle(V(28, -18.3, 0), V(0, 0, 1), 1.5), math.radians(0), math.radians(90)), False)
sketch9.addConstraint(Sketcher.Constraint("Tangent", 0, 2, 1, 2))
sketch9.addConstraint(Sketcher.Constraint("Tangent", 1, 1, 2, 1))
sketch9.addConstraint(Sketcher.Constraint("Tangent", 2, 2, 3, 2))
sketch9.addConstraint(Sketcher.Constraint("Tangent", 3, 1, 4, 1))
sketch9.addConstraint(Sketcher.Constraint("Tangent", 4, 2, 5, 2))
sketch9.addConstraint(Sketcher.Constraint("Tangent", 5, 1, 6, 1))
sketch9.addConstraint(Sketcher.Constraint("Tangent", 6, 2, 7, 2))
sketch9.addConstraint(Sketcher.Constraint("Tangent", 7, 1, 0, 1))
sketch9.addConstraint(Sketcher.Constraint("Vertical", 0))
sketch9.addConstraint(Sketcher.Constraint("Horizontal", 2))
sketch9.addConstraint(Sketcher.Constraint("Vertical", 4))
sketch9.addConstraint(Sketcher.Constraint("Horizontal", 6))
sketch9.addConstraint(Sketcher.Constraint("Equal", 1, 3))
sketch9.addConstraint(Sketcher.Constraint("Equal", 3, 5))
sketch9.addConstraint(Sketcher.Constraint("Equal", 5, 7))
sketch9.addConstraint(Sketcher.Constraint("Radius", 1, Q("1.5 mm")))
sketch9.addConstraint(Sketcher.Constraint("DistanceX", 2, 2, 2, 1, Q("1 mm")))
sketch9.addConstraint(Sketcher.Constraint("DistanceY", 0, 2, 0, 1, Q("9.4 mm")))
sketch9.addConstraint(Sketcher.Constraint("DistanceX", -1, 1, 1, 3, Q("28 mm")))
sketch9.addConstraint(Sketcher.Constraint("DistanceY", 1, 3, -1, 1, Q("27.7 mm")))
pocket3 = doc.addObject("PartDesign::Pocket", "Pocket002")
body.addObject(pocket3)
pocket3.Profile = sketch9
pocket3.Length = 10
pocket3.Reversed = True

# Sketch on YZ plane
sketch10 = doc.addObject("Sketcher::SketchObject", "Sketch009")
body.addObject(sketch10)
sketch10.AttachmentSupport = (doc.YZ_Plane, [""])
sketch10.MapMode = "FlatFace"
sketch10.addGeometry(Part.Circle(V(27.5, -31.1, 0), V(0, 0, 1), 1), False)
sketch10.addGeometry(Part.Circle(V(27.5, -14.8, 0), V(0, 0, 1), 1), False)
sketch10.addConstraint(Sketcher.Constraint("Equal", 0, 1))
sketch10.addConstraint(Sketcher.Constraint("Vertical", 0, 3, 1, 3))
sketch10.addConstraint(Sketcher.Constraint("Diameter", 0, Q("2 mm")))
sketch10.addConstraint(Sketcher.Constraint("DistanceX", -1, 1, 0, 3, Q("27.5 mm")))
sketch10.addConstraint(Sketcher.Constraint("DistanceY", 0, 3, 1, 3, Q("16.3 mm")))
sketch10.addConstraint(Sketcher.Constraint("DistanceY", 0, 3, -1, 1, Q("31.15 mm")))
pocket4 = doc.addObject("PartDesign::Pocket", "Pocket003")
body.addObject(pocket4)
pocket4.Profile = sketch10
pocket4.Length = 10
pocket4.Reversed = True

# Sketch on YZ plane
sketch11 = doc.addObject("Sketcher::SketchObject", "Sketch010")
body.addObject(sketch11)
sketch11.AttachmentSupport = (doc.YZ_Plane, [""])
sketch11.MapMode = "FlatFace"
sketch11.addGeometry(Part.LineSegment(V(22.5, -12.5, 0), V(22.5, -27.5, 0)), False)
sketch11.addGeometry(Part.ArcOfCircle(Part.Circle(V(21, -27.5, 0), V(0, 0, 1), 1.5), math.radians(-90), math.radians(0)), False)
sketch11.addGeometry(Part.LineSegment(V(21, -29, 0), V(14, -29, 0)), False)
sketch11.addGeometry(Part.ArcOfCircle(Part.Circle(V(14, -27.5, 0), V(0, 0, 1), 1.5), math.radians(180), math.radians(270)), False)
sketch11.addGeometry(Part.LineSegment(V(12.5, -27.5, 0), V(12.5, -12.5, 0)), False)
sketch11.addGeometry(Part.ArcOfCircle(Part.Circle(V(14, -12.5, 0), V(0, 0, 1), 1.5), math.radians(90), math.radians(180)), False)
sketch11.addGeometry(Part.LineSegment(V(14, -11, 0), V(21, -11, 0)), False)
sketch11.addGeometry(Part.ArcOfCircle(Part.Circle(V(21, -12.5, 0), V(0, 0, 1), 1.5), math.radians(0), math.radians(90)), False)
sketch11.addConstraint(Sketcher.Constraint("Tangent", 0, 2, 1, 2))
sketch11.addConstraint(Sketcher.Constraint("Tangent", 1, 1, 2, 1))
sketch11.addConstraint(Sketcher.Constraint("Tangent", 2, 2, 3, 2))
sketch11.addConstraint(Sketcher.Constraint("Tangent", 3, 1, 4, 1))
sketch11.addConstraint(Sketcher.Constraint("Tangent", 4, 2, 5, 2))
sketch11.addConstraint(Sketcher.Constraint("Tangent", 5, 1, 6, 1))
sketch11.addConstraint(Sketcher.Constraint("Tangent", 6, 2, 7, 2))
sketch11.addConstraint(Sketcher.Constraint("Tangent", 7, 1, 0, 1))
sketch11.addConstraint(Sketcher.Constraint("Vertical", 0))
sketch11.addConstraint(Sketcher.Constraint("Horizontal", 2))
sketch11.addConstraint(Sketcher.Constraint("Vertical", 4))
sketch11.addConstraint(Sketcher.Constraint("Horizontal", 6))
sketch11.addConstraint(Sketcher.Constraint("Equal", 1, 3))
sketch11.addConstraint(Sketcher.Constraint("Equal", 3, 5))
sketch11.addConstraint(Sketcher.Constraint("Equal", 5, 7))
sketch11.addConstraint(Sketcher.Constraint("Radius", 1, Q("1.5 mm")))
sketch11.addConstraint(Sketcher.Constraint("DistanceX", 2, 2, 2, 1, Q("7 mm")))
sketch11.addConstraint(Sketcher.Constraint("DistanceY", 0, 2, 0, 1, Q("15 mm")))
sketch11.addConstraint(Sketcher.Constraint("DistanceX", -1, 1, 1, 3, Q("21 mm")))
sketch11.addConstraint(Sketcher.Constraint("DistanceY", 1, 1, -1, 1, Q("29 mm")))
pocket5 = doc.addObject("PartDesign::Pocket", "Pocket004")
body.addObject(pocket5)
pocket5.Profile = sketch11
pocket5.Length = 10
pocket5.Reversed = True

# Sketch on XZ plane
sketch12 = doc.addObject("Sketcher::SketchObject", "Sketch011")
body.addObject(sketch12)
sketch12.AttachmentSupport = (doc.XZ_Plane, [""])
sketch12.MapMode = "FlatFace"
sketch12.AttachmentOffset = App.Placement(V(0, 0, -2), App.Rotation())
sketch12.addGeometry(Part.LineSegment(V(5, -37, 0), V(5, -9, 0)), False)
sketch12.addGeometry(Part.LineSegment(V(5, -9, 0), V(61, -9, 0)), False)
sketch12.addGeometry(Part.LineSegment(V(61, -9, 0), V(61, -37, 0)), False)
sketch12.addGeometry(Part.LineSegment(V(61, -37, 0), V(5, -37, 0)), False)
sketch12.addConstraint(Sketcher.Constraint("Coincident", 0, 2, 1, 1))
sketch12.addConstraint(Sketcher.Constraint("Coincident", 1, 2, 2, 1))
sketch12.addConstraint(Sketcher.Constraint("Coincident", 2, 2, 3, 1))
sketch12.addConstraint(Sketcher.Constraint("Coincident", 3, 2, 0, 1))
sketch12.addConstraint(Sketcher.Constraint("Vertical", 0))
sketch12.addConstraint(Sketcher.Constraint("Horizontal", 1))
sketch12.addConstraint(Sketcher.Constraint("Vertical", 2))
sketch12.addConstraint(Sketcher.Constraint("Horizontal", 3))
sketch12.addConstraint(Sketcher.Constraint("DistanceX", 1, 1, 1, 2, Q("55.523947 mm")))
sketch12.addConstraint(Sketcher.Constraint("DistanceY", 0, 1, 0, 2, Q("27.402982 mm")))
sketch12.addConstraint(Sketcher.Constraint("DistanceY", 0, 2, -1, 1, Q("9.298509 mm")))
sketch12.addConstraint(Sketcher.Constraint("DistanceX", -1, 1, 0, 2, Q("5.238026 mm")))
pocket6 = doc.addObject("PartDesign::Pocket", "Pocket005")
body.addObject(pocket6)
pocket6.Profile = sketch12
pocket6.Length = 1
pocket6.Reversed = True
body2 = doc.addObject("PartDesign::Body", "Body001")

# Sketch on YZ plane
sketch13 = doc.addObject("Sketcher::SketchObject", "Sketch012")
body2.addObject(sketch13)
sketch13.AttachmentSupport = (doc.getObject("YZ_Plane001"), [""])
sketch13.MapMode = "FlatFace"
sketch13.AttachmentOffset = App.Placement(V(0, 0, 61), App.Rotation())
sketch13.addGeometry(Part.Circle(V(13.5, 2.5, 0), V(0, 0, 1), 1.8), False)
sketch13.addConstraint(Sketcher.Constraint("Diameter", 0, Q("3.5 mm")))
sketch13.addConstraint(Sketcher.Constraint("DistanceX", -1, 1, 0, 3, Q("13.5 mm")))
sketch13.addConstraint(Sketcher.Constraint("DistanceY", -1, 1, 0, 3, Q("2.5 mm")))
pad7 = doc.addObject("PartDesign::Pad", "Pad006")
body2.addObject(pad7)
pad7.Profile = sketch13
pad7.Length = 55
pad7.Reversed = True

doc.recompute()
